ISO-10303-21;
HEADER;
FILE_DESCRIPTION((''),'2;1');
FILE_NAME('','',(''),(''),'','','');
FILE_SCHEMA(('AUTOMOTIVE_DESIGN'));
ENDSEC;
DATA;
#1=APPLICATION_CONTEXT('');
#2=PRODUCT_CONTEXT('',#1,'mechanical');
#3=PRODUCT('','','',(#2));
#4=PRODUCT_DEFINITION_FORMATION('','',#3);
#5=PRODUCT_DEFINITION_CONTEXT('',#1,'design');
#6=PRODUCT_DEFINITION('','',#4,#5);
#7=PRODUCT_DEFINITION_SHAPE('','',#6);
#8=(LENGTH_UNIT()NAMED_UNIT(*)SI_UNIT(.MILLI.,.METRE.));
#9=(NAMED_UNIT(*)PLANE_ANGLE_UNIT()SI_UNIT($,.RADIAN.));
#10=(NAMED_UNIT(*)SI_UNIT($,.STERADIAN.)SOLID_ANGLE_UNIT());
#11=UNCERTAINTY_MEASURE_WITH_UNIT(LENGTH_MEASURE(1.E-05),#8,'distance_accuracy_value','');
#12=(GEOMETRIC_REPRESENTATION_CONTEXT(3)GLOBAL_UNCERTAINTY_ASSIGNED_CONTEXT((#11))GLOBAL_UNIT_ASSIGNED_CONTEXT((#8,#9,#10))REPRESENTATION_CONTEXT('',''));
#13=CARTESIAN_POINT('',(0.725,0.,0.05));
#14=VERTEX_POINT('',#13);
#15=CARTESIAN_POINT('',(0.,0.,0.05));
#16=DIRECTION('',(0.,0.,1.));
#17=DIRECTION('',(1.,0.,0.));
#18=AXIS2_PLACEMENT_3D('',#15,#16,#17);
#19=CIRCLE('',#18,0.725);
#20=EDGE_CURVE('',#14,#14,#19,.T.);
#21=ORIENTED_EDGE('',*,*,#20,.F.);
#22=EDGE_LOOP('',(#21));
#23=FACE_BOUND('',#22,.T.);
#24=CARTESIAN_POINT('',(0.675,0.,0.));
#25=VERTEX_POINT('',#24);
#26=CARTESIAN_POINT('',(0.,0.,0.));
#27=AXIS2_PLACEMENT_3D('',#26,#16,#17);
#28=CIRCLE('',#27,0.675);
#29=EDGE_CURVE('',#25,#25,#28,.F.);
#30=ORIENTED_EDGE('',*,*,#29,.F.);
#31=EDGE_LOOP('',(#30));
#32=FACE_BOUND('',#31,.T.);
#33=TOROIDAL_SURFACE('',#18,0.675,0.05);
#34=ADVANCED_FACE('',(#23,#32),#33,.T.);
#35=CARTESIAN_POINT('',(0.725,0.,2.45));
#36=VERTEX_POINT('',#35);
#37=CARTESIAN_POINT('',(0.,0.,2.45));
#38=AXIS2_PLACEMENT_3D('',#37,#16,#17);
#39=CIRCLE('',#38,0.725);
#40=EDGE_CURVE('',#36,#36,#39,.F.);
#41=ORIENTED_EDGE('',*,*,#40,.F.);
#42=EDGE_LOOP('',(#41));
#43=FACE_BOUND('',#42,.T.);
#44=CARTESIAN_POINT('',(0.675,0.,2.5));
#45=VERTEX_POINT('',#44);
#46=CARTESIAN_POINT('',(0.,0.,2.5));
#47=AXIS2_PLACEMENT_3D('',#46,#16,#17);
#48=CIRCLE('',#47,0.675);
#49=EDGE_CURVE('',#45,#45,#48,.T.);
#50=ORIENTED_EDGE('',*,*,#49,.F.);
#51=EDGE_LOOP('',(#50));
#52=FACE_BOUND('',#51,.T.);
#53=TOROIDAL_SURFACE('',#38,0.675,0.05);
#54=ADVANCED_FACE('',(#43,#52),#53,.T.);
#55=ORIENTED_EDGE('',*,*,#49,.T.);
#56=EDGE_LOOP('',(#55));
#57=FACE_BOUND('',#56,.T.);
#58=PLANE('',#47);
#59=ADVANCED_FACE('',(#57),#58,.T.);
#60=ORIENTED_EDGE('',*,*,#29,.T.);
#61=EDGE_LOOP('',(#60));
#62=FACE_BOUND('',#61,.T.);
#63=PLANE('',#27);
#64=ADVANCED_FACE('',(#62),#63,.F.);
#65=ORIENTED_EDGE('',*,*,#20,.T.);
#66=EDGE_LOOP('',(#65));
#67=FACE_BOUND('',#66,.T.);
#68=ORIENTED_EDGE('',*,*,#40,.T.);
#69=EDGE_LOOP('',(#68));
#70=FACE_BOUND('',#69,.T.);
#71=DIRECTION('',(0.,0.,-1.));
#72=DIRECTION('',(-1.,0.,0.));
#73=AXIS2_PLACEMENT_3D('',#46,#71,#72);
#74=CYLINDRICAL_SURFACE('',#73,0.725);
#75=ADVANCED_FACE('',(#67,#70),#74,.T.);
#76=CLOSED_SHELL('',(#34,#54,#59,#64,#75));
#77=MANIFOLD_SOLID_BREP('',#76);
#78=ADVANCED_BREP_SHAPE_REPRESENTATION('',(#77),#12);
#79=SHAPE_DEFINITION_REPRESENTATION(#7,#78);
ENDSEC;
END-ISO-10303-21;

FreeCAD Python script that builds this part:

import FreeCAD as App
import Part
import Sketcher


def edges_at(feature, points):
    """Names of the edges that pass closest to the given points."""
    edges = feature.Shape.Edges
    near = lambda p: min(range(len(edges)), key=lambda i: edges[i].distToShape(Part.Vertex(*p))[0])
    return sorted({f"Edge{near(p) + 1}" for p in points})

doc = App.newDocument("Part")
body = doc.addObject("PartDesign::Body", "Body")

# Sketch on XY plane
sketch1 = body.newObject("Sketcher::SketchObject", "Sketch")
sketch1.AttachmentSupport = (doc.getObject("XY_Plane"), [""])
sketch1.MapMode = "FlatFace"
sketch1.addGeometry(Part.Circle(App.Vector(0, 0, 0), App.Vector(0, 0, 1), 0.7), False)
sketch1.addConstraint([
    Sketcher.Constraint("Coincident", 0, 3, -1, 1),
    Sketcher.Constraint("Diameter", 0, 1.45),
])
pad1 = body.newObject("PartDesign::Pad", "Pad")
pad1.Profile = sketch1
pad1.Length = 2.5
doc.recompute()

fillet = body.newObject("PartDesign::Fillet", "Fillet")
fillet.Base = (pad1, edges_at(pad1, [(-0.725, 0, 0), (-0.725, 0, 2.5)]))
fillet.Radius = 0.05

doc.recompute()
